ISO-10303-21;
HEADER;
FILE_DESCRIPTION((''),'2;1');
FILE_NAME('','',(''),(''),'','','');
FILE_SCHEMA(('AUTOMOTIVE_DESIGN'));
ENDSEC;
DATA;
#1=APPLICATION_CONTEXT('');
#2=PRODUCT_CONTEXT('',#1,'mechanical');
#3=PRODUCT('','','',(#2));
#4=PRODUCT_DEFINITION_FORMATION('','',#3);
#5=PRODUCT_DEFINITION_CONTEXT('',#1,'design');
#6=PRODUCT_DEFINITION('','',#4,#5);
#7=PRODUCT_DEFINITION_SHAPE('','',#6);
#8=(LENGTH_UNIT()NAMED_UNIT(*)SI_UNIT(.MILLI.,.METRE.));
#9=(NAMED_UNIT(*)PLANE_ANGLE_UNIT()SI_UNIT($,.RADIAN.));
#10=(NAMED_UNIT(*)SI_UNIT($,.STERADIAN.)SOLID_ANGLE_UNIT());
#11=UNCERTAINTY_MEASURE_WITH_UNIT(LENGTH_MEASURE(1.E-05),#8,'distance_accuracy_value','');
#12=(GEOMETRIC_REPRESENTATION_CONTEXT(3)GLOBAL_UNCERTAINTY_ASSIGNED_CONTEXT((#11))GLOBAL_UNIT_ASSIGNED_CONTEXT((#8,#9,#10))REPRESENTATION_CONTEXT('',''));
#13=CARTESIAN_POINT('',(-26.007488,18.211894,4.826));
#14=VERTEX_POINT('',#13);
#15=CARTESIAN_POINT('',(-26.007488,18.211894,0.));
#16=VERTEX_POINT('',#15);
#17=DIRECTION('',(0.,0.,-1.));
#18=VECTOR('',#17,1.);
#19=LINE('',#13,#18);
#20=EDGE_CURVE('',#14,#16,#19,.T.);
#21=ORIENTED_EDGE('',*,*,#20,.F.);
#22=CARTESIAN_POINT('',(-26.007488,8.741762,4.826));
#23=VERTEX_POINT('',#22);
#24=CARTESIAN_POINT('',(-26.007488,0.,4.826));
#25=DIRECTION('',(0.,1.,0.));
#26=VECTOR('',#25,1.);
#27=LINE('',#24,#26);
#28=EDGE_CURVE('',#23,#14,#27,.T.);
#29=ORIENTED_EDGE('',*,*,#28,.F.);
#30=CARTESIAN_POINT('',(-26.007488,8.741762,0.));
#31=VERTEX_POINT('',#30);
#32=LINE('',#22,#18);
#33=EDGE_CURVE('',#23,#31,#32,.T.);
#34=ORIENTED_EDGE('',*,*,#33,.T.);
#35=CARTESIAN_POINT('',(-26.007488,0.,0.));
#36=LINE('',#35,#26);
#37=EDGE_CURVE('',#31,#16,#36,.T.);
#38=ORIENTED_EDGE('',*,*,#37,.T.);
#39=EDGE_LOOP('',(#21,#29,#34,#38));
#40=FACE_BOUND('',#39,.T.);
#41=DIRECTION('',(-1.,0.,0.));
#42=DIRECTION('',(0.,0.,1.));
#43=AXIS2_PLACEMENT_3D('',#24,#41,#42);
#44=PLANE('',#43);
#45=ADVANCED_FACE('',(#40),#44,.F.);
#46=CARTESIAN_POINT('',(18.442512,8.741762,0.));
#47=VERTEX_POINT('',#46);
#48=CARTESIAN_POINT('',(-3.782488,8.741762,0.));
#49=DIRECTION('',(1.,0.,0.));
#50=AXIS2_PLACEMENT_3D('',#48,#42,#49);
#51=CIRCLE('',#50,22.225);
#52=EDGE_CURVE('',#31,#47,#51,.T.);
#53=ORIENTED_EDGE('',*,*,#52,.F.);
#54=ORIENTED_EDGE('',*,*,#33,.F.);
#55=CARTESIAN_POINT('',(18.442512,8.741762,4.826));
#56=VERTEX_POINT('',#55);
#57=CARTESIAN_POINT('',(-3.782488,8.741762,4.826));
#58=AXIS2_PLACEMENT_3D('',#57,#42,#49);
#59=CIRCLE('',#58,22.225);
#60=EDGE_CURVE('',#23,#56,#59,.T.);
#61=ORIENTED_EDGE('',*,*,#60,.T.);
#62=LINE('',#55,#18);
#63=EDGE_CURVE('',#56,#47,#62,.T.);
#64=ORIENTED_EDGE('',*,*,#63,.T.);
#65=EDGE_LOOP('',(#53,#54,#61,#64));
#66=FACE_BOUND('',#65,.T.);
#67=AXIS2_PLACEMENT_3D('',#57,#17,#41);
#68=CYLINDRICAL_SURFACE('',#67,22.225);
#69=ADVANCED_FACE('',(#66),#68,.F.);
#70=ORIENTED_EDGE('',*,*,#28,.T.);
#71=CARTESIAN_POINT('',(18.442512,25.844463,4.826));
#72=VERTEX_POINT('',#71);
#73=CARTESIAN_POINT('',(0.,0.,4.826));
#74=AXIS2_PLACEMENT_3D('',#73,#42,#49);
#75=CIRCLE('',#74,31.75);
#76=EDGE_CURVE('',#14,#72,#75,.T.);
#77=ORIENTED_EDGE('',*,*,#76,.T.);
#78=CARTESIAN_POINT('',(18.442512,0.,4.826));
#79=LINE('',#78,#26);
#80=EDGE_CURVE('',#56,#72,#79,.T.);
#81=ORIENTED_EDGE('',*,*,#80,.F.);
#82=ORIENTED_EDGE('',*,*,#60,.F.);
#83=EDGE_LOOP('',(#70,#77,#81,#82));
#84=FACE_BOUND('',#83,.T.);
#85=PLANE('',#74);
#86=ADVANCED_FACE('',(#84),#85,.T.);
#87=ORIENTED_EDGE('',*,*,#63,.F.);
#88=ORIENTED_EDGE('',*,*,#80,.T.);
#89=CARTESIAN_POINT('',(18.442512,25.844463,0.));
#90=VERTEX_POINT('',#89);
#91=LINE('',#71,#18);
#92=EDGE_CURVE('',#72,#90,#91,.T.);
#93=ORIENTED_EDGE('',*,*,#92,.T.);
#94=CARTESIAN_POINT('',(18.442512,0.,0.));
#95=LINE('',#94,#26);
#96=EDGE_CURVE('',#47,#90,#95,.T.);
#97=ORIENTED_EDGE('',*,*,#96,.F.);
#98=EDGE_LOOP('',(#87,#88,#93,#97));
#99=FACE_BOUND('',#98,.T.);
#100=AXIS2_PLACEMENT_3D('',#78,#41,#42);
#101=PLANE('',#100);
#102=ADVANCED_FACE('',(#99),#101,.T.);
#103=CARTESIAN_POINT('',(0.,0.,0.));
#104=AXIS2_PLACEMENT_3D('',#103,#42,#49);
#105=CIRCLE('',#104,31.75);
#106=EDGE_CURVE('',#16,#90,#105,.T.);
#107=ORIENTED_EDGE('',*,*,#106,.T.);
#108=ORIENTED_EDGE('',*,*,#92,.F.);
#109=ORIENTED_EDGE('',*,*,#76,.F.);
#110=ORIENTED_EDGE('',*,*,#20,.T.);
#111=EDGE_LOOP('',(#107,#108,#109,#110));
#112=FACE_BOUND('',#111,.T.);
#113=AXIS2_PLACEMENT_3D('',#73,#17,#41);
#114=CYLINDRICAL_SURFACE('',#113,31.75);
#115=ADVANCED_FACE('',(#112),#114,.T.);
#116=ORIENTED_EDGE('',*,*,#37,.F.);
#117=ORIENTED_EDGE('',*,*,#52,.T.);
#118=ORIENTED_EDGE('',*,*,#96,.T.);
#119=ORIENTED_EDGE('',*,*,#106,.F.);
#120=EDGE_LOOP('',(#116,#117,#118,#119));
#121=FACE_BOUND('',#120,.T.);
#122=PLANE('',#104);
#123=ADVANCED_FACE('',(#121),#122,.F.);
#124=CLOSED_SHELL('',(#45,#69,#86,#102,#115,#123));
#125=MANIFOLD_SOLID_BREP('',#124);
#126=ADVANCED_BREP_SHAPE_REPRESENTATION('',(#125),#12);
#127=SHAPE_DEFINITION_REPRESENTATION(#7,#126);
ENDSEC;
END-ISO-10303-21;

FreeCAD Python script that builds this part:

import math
import FreeCAD as App
import Part
import Sketcher

V = App.Vector
Q = App.Units.Quantity

doc = App.newDocument("Part")
body = doc.addObject("PartDesign::Body", "Body")

sketch1 = body.newObject("Sketcher::SketchObject", "Sketch")
sketch1.AttachmentSupport = (doc.getObject("XY_Plane"), [""])
sketch1.MapMode = "FlatFace"
sketch1.addGeometry([
    Part.ArcOfCircle(Part.Circle(V(-4, 9, 0), V(0, 0, 1), 22), math.radians(180), math.radians(360)),
    Part.LineSegment(V(-26, 9, 0), V(-26, 18, 0)),
    Part.ArcOfCircle(Part.Circle(V(0, 0, 0), V(0, 0, 1), 32), math.radians(145), math.radians(360)),
    Part.ArcOfCircle(Part.Circle(V(0, 0, 0), V(0, 0, 1), 32), math.radians(0), math.radians(54)),
    Part.LineSegment(V(18, 26, 0), V(18, 9, 0)),
], False)
sketch1.addConstraint([
    Sketcher.Constraint("Tangent", 0, 1, 1, 1),
    Sketcher.Constraint("Coincident", 1, 2, 2, 1),
    Sketcher.Constraint("Tangent", 2, 2, 3, 1),
    Sketcher.Constraint("Coincident", 3, 2, 4, 1),
    Sketcher.Constraint("Tangent", 4, 2, 0, 2),
    Sketcher.Constraint("Vertical", 1),
    Sketcher.Constraint("Vertical", 4),
    Sketcher.Constraint("Coincident", 2, 3, -1, 1),
    Sketcher.Constraint("Equal", 2, 3),
    Sketcher.Constraint("PointOnObject", 2, 2, -1),
    Sketcher.Constraint("Radius", 2, Q("1.25 in")),
    Sketcher.Constraint("Radius", 0, Q("0.875 in")),
    Sketcher.Constraint("DistanceY", 4, 2, 4, 1, Q("17.1027 mm")),
    Sketcher.Constraint("DistanceY", 1, 1, 1, 2, Q("9.470131 mm")),
])
pad1 = body.newObject("PartDesign::Pad", "Pad")
pad1.Profile = sketch1
pad1.Length = Q("0.19 in")

doc.recompute()
